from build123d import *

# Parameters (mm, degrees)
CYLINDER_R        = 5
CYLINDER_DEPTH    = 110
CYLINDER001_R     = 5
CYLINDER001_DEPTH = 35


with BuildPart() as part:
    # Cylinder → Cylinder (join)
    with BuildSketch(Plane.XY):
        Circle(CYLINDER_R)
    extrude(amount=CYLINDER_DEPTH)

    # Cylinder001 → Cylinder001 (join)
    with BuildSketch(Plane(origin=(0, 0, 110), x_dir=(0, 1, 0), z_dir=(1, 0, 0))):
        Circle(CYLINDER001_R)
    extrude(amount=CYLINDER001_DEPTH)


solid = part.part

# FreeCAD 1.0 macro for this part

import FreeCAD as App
import Part
import Sketcher
from FreeCAD import Vector

doc = App.newDocument("Part")
params = doc.addObject("Spreadsheet::Sheet", "Params")
for row, (alias, value) in enumerate([
    ("sketch1_diameter", "10 mm"),
    ("pad1_length", "110 mm"),
    ("sketch2_diameter", "10 mm"),
    ("pad2_length", "35 mm"),
], start=1):
    params.set(f"A{row}", alias)
    params.set(f"B{row}", "=" + value)
    params.setAlias(f"B{row}", alias)

body = doc.addObject("PartDesign::Body", "Body")

sketch1 = doc.addObject("Sketcher::SketchObject", "Sketch")
body.addObject(sketch1)
sketch1.AttachmentSupport = (doc.XY_Plane, [""])
sketch1.MapMode = "FlatFace"
sketch1.addGeometry(Part.Circle(Vector(0, 0, 0), Vector(0, 0, 1), 5), False)
sketch1.addConstraint(Sketcher.Constraint("Coincident", 0, 3, -1, 1))
sketch1.addConstraint(Sketcher.Constraint("Diameter", 0, 10.0))
sketch1.setExpression("Constraints[1]", "Params.sketch1_diameter")
pad1 = doc.addObject("PartDesign::Pad", "Pad")
body.addObject(pad1)
pad1.Profile = sketch1
pad1.setExpression("Length", "Params.pad1_length")

sketch2 = doc.addObject("Sketcher::SketchObject", "Sketch001")
body.addObject(sketch2)
sketch2.AttachmentSupport = (doc.YZ_Plane, [""])
sketch2.MapMode = "FlatFace"
sketch2.addGeometry(Part.Circle(Vector(0, 110, 0), Vector(0, 0, 1), 5), False)
sketch2.addConstraint(Sketcher.Constraint("PointOnObject", 0, 3, -2))
sketch2.addConstraint(Sketcher.Constraint("Diameter", 0, 10.0))
sketch2.addConstraint(Sketcher.Constraint("DistanceY", -1, 1, 0, 3, 110.0))
sketch2.setExpression("Constraints[1]", "Params.sketch2_diameter")
pad2 = doc.addObject("PartDesign::Pad", "Pad001")
body.addObject(pad2)
pad2.Profile = sketch2
pad2.setExpression("Length", "Params.pad2_length")

doc.recompute()
